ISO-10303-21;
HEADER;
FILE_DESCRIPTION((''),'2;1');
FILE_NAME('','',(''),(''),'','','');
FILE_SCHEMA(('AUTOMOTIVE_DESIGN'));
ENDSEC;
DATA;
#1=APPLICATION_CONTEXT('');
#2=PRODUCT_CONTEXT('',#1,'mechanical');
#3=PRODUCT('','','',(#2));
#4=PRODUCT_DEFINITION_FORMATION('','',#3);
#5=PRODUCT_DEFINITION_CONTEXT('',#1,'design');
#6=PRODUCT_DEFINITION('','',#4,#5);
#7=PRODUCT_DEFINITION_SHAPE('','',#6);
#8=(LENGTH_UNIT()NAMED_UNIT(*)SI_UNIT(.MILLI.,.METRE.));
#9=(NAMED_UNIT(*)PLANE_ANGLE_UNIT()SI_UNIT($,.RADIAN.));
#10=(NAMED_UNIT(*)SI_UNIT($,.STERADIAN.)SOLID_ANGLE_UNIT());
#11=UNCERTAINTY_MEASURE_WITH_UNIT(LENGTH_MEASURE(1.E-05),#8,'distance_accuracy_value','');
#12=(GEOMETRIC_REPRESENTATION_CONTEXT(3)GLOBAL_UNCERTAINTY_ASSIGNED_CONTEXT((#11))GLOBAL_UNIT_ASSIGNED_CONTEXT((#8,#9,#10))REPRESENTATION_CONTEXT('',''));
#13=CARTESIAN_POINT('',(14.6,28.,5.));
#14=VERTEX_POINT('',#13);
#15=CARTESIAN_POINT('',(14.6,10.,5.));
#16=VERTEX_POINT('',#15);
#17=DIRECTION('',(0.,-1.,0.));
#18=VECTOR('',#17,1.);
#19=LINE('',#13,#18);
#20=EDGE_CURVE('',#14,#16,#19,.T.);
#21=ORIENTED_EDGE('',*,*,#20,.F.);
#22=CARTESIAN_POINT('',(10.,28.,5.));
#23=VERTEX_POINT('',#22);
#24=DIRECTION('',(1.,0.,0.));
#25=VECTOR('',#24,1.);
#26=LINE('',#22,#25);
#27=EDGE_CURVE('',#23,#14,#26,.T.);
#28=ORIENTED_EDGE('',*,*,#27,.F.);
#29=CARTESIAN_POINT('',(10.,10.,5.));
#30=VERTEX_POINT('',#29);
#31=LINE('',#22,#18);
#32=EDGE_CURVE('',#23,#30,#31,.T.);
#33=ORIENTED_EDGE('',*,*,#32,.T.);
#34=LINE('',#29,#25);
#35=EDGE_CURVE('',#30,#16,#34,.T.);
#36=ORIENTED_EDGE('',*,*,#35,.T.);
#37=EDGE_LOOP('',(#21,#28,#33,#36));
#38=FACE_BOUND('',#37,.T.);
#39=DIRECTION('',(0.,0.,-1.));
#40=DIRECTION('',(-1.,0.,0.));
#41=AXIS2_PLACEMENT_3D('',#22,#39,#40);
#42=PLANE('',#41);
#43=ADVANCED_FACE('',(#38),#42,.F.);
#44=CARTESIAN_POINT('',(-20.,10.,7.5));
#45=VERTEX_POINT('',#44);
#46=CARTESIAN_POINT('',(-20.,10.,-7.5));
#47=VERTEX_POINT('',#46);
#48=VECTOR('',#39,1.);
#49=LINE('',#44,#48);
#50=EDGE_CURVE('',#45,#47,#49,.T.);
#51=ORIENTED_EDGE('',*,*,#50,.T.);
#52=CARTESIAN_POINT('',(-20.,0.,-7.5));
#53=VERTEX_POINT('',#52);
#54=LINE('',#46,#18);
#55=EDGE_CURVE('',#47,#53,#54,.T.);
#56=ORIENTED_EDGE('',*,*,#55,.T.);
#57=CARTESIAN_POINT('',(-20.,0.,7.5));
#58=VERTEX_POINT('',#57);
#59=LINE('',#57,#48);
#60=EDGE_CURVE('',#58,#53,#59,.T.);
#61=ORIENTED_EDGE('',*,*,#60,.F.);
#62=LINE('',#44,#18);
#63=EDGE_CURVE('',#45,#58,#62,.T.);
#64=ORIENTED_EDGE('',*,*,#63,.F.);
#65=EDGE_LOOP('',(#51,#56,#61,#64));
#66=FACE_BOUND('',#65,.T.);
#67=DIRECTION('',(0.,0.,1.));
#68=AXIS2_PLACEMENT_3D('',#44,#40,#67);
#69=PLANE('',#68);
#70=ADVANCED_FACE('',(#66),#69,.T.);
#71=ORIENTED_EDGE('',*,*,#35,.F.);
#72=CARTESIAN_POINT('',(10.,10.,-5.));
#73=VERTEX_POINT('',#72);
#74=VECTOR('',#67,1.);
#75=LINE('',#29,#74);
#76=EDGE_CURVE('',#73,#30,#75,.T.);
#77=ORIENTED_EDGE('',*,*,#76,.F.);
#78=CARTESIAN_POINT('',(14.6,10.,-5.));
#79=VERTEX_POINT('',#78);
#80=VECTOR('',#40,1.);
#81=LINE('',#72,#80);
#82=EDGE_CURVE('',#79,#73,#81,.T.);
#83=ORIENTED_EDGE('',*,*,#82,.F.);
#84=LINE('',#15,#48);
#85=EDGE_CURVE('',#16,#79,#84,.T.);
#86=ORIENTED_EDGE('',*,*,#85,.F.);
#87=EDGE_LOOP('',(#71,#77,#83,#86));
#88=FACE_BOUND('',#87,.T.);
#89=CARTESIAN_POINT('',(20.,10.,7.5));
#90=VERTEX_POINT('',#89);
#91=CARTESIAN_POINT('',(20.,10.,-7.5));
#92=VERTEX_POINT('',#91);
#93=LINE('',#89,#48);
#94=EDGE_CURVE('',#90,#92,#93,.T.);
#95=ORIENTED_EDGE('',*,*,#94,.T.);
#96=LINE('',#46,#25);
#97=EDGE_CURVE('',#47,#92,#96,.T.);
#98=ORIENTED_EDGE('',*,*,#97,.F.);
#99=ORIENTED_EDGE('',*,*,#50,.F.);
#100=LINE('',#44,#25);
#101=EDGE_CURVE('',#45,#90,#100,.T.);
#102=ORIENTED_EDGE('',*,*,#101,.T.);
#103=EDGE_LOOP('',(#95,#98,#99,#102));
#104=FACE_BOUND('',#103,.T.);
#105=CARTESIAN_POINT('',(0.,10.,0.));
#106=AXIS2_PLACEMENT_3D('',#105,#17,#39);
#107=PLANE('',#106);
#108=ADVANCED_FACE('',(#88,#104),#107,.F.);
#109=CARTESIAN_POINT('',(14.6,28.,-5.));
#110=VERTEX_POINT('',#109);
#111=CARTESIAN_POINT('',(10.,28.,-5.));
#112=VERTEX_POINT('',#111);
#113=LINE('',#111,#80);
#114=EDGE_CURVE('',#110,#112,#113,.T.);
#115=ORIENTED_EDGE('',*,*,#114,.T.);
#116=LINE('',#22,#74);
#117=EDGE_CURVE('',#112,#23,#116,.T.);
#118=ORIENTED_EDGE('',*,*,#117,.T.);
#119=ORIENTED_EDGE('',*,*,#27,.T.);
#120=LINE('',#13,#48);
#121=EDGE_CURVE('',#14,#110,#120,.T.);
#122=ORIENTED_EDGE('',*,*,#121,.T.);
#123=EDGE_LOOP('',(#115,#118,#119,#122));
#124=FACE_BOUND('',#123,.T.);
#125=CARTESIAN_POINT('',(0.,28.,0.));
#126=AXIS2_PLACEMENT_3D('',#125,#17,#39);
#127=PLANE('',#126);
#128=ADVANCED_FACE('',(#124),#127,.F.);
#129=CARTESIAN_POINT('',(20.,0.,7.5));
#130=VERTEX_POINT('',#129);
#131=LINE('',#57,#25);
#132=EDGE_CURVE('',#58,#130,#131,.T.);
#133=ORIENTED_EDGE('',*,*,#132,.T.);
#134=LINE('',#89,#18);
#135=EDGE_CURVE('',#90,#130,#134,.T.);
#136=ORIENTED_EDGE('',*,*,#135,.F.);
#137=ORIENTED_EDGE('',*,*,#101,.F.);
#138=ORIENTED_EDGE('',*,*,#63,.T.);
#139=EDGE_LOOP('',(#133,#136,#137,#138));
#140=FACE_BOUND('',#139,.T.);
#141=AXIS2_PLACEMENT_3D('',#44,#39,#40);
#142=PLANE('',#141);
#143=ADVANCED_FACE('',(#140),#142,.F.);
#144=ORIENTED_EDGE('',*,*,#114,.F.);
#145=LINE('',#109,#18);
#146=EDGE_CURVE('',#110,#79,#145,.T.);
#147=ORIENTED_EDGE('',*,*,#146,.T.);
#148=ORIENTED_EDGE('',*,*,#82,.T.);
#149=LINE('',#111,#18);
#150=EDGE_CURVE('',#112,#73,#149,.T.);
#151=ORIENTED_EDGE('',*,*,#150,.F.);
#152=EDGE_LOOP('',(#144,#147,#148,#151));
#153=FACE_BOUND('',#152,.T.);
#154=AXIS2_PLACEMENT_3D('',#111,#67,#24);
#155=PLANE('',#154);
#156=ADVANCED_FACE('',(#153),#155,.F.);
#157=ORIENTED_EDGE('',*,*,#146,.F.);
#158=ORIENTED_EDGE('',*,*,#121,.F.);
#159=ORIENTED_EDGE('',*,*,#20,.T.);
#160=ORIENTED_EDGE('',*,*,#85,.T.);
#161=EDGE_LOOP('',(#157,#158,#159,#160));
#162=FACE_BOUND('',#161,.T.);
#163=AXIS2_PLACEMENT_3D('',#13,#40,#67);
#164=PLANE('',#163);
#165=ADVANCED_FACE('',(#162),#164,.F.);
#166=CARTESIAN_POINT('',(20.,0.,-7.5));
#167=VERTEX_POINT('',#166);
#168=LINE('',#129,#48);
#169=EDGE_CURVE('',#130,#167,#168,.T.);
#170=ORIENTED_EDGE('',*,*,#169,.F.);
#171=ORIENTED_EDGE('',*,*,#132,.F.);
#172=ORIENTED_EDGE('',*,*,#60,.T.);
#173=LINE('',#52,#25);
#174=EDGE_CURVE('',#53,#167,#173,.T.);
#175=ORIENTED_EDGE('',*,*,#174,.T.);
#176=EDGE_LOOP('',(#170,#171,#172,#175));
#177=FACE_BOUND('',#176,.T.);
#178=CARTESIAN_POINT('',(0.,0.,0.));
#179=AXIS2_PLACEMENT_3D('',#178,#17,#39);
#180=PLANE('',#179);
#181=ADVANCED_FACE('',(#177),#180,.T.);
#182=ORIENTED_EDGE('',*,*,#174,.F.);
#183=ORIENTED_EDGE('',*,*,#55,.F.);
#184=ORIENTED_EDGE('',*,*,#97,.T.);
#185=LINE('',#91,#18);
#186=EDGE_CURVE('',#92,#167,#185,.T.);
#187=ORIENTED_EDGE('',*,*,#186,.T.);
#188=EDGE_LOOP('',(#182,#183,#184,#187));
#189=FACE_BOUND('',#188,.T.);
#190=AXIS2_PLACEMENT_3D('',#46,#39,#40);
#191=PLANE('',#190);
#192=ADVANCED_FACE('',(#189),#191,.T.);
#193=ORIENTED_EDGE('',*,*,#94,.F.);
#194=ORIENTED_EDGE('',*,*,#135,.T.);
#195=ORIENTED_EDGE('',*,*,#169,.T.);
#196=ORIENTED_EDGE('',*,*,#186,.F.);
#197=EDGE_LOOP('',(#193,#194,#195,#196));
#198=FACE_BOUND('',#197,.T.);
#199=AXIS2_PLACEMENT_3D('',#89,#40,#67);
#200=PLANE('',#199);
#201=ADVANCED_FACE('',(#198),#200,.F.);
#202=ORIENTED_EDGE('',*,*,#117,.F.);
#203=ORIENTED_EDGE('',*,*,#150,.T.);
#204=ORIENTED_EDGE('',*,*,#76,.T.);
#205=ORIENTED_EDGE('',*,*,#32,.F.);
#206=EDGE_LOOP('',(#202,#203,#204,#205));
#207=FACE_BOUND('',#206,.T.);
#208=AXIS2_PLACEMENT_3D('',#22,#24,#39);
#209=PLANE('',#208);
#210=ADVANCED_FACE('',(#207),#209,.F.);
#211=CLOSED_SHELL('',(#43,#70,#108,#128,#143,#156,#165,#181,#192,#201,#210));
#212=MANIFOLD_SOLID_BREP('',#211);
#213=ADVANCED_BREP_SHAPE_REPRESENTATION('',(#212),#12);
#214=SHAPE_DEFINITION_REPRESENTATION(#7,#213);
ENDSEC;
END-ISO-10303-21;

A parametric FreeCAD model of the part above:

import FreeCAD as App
import Part
import Sketcher

V = App.Vector

doc = App.newDocument("Part")
body = doc.addObject("PartDesign::Body", "Body")

sketch1 = body.newObject("Sketcher::SketchObject", "Sketch")
sketch1.AttachmentSupport = (doc.getObject("XZ_Plane"), [""])
sketch1.MapMode = "FlatFace"
sketch1.addGeometry(Part.LineSegment(V(-20, -8, 0), V(-20, 8, 0)), False)
sketch1.addGeometry(Part.LineSegment(V(-20, 8, 0), V(20, 8, 0)), False)
sketch1.addGeometry(Part.LineSegment(V(20, 8, 0), V(20, -8, 0)), False)
sketch1.addGeometry(Part.LineSegment(V(20, -8, 0), V(-20, -8, 0)), False)
sketch1.addConstraint(Sketcher.Constraint("Coincident", 0, 2, 1, 1))
sketch1.addConstraint(Sketcher.Constraint("Coincident", 1, 2, 2, 1))
sketch1.addConstraint(Sketcher.Constraint("Coincident", 2, 2, 3, 1))
sketch1.addConstraint(Sketcher.Constraint("Coincident", 3, 2, 0, 1))
sketch1.addConstraint(Sketcher.Constraint("Vertical", 0))
sketch1.addConstraint(Sketcher.Constraint("Horizontal", 1))
sketch1.addConstraint(Sketcher.Constraint("Vertical", 2))
sketch1.addConstraint(Sketcher.Constraint("Horizontal", 3))
sketch1.addConstraint(Sketcher.Constraint("Symmetric", 0, 2, 2, 2, -1, 1))
sketch1.addConstraint(Sketcher.Constraint("DistanceX", 1, 1, 1, 2, 40.0))
sketch1.addConstraint(Sketcher.Constraint("DistanceY", 0, 1, 0, 2, 15.0))
pad1 = body.newObject("PartDesign::Pad", "Pad")
pad1.Profile = sketch1
pad1.Length = 10
pad1.Reversed = True

sketch2 = body.newObject("Sketcher::SketchObject", "Sketch001")
sketch2.AttachmentSupport = (doc.getObject("XZ_Plane"), [""])
sketch2.MapMode = "FlatFace"
sketch2.AttachmentOffset = App.Placement(V(0, 0, -10), App.Rotation())
sketch2.addGeometry(Part.LineSegment(V(10, -5, 0), V(10, 5, 0)), False)
sketch2.addGeometry(Part.LineSegment(V(10, 5, 0), V(14.6, 5, 0)), False)
sketch2.addGeometry(Part.LineSegment(V(14.6, 5, 0), V(14.6, -5, 0)), False)
sketch2.addGeometry(Part.LineSegment(V(14.6, -5, 0), V(10, -5, 0)), False)
sketch2.addConstraint(Sketcher.Constraint("Coincident", 0, 2, 1, 1))
sketch2.addConstraint(Sketcher.Constraint("Coincident", 1, 2, 2, 1))
sketch2.addConstraint(Sketcher.Constraint("Coincident", 2, 2, 3, 1))
sketch2.addConstraint(Sketcher.Constraint("Coincident", 3, 2, 0, 1))
sketch2.addConstraint(Sketcher.Constraint("Vertical", 0))
sketch2.addConstraint(Sketcher.Constraint("Horizontal", 1))
sketch2.addConstraint(Sketcher.Constraint("Vertical", 2))
sketch2.addConstraint(Sketcher.Constraint("Horizontal", 3))
sketch2.addConstraint(Sketcher.Constraint("DistanceY", 0, 1, 0, 2, 10.0))
sketch2.addConstraint(Sketcher.Constraint("DistanceX", 1, 1, 1, 2, 4.6))
sketch2.addConstraint(Sketcher.Constraint("DistanceX", -1, 1, 0, 2, 10.0))
sketch2.addConstraint(Sketcher.Constraint("DistanceY", -1, 1, 0, 2, 5.0))
pad2 = body.newObject("PartDesign::Pad", "Pad001")
pad2.Profile = sketch2
pad2.Length = 18
pad2.Reversed = True

doc.recompute()
